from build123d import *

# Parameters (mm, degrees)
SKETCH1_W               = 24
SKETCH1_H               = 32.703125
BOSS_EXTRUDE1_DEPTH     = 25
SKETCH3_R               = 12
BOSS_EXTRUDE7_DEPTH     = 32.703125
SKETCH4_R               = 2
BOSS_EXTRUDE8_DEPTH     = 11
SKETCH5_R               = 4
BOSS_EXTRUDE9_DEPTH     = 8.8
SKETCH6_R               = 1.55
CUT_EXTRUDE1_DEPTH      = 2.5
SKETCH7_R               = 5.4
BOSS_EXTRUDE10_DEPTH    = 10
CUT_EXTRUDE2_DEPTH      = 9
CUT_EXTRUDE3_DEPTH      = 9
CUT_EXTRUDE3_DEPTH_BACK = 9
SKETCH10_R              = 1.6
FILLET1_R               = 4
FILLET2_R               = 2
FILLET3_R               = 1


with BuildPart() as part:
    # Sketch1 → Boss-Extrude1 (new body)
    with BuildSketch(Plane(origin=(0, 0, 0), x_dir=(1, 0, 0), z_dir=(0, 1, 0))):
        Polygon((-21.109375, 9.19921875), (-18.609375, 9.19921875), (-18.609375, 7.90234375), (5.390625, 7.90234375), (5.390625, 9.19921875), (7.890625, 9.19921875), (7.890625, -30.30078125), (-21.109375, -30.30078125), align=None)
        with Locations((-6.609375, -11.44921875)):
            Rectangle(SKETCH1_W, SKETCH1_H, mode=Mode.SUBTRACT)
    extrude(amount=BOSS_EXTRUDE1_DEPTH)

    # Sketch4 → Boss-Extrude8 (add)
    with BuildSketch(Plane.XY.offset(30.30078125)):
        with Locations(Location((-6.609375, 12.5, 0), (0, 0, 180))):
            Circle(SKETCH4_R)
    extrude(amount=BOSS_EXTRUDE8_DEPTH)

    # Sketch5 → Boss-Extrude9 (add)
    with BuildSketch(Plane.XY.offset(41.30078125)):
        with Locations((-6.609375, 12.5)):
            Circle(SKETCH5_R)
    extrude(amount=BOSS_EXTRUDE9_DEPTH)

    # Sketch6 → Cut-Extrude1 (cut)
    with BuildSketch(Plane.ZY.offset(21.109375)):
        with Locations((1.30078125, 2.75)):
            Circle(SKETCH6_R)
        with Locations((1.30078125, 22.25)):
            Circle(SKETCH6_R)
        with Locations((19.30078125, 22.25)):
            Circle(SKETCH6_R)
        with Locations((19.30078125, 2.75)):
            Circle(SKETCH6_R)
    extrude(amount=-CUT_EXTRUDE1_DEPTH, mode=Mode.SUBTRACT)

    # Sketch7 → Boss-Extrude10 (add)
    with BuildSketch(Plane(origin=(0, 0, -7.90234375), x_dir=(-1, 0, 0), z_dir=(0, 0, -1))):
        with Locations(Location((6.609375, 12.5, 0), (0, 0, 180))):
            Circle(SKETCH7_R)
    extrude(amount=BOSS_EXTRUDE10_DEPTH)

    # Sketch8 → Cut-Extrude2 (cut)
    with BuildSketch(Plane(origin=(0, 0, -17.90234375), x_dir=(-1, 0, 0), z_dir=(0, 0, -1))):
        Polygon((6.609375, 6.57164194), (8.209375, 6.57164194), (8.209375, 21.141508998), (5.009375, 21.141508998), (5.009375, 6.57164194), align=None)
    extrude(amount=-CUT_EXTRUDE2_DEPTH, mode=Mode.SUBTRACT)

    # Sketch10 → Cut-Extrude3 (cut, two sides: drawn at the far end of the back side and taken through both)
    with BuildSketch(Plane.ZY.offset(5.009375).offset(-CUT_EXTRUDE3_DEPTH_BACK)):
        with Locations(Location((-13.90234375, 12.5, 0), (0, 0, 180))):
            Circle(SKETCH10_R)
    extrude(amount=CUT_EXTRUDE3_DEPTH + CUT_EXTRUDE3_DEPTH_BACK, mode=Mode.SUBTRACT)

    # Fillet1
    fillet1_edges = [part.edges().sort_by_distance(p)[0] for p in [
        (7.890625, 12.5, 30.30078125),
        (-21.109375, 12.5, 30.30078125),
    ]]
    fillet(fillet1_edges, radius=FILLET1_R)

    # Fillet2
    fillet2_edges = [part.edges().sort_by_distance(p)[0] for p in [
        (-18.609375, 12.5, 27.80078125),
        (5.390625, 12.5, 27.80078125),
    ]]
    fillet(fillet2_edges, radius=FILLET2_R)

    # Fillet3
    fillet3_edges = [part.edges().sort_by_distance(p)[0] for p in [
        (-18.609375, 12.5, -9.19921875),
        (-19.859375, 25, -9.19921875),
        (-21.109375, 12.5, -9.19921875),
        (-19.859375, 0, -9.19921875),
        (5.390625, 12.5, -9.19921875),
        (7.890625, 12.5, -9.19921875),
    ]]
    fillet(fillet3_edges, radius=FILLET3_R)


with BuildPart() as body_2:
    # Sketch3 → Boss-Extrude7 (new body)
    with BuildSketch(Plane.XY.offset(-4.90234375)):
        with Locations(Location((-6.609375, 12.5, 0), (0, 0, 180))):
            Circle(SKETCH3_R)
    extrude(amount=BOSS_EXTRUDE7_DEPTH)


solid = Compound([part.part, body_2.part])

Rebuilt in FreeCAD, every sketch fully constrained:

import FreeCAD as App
import Part
import Sketcher
from FreeCAD import Vector
Q = App.Units.Quantity


def edges_at(feature, points):
    """Names of the edges that pass closest to the given points."""
    edges = feature.Shape.Edges
    near = lambda p: min(range(len(edges)), key=lambda i: edges[i].distToShape(Part.Vertex(*p))[0])
    return sorted({f"Edge{near(p) + 1}" for p in points})

doc = App.newDocument("Part")
params = doc.addObject("Spreadsheet::Sheet", "Params")
for row, (alias, value) in enumerate([
    ("sketch1_width", "29 mm"),
    ("sketch1_width2", "24 mm"),
    ("sketch1_height", "39.5 mm"),
    ("pad1_length", "25 mm"),
    ("sketch2_diameter", "4 mm"),
    ("pad2_length", "11 mm"),
    ("sketch3_diameter", "8 mm"),
    ("pad3_length", "8.8 mm"),
    ("sketch4_diameter", "3.1 mm"),
    ("pocket1_length", "2.5 mm"),
    ("sketch5_diameter", "10.8 mm"),
    ("pad4_length", "10 mm"),
    ("sketch6_width", "3.2 mm"),
    ("pocket2_length", "9 mm"),
    ("sketch7_diameter", "3.2 mm"),
    ("fillet_radius", "4 mm"),
    ("fillet2_radius", "2 mm"),
    ("fillet3_radius", "1 mm"),
    ("sketch8_diameter", "24 mm"),
    ("pad5_length", "32.703125 mm"),
], start=1):
    params.set(f"A{row}", alias)
    params.set(f"B{row}", "=" + value)
    params.setAlias(f"B{row}", alias)

body = doc.addObject("PartDesign::Body", "Body")

# Sketch on XZ plane
sketch1 = doc.addObject("Sketcher::SketchObject", "Sketch")
body.addObject(sketch1)
sketch1.AttachmentSupport = (doc.XZ_Plane, [""])
sketch1.MapMode = "FlatFace"
sketch1.addGeometry(Part.LineSegment(Vector(-18.6, -9.2, 0), Vector(-21.1, -9.2, 0)), False)
sketch1.addGeometry(Part.LineSegment(Vector(-21.1, -9.2, 0), Vector(-21.1, 30.3, 0)), False)
sketch1.addGeometry(Part.LineSegment(Vector(-21.1, 30.3, 0), Vector(7.9, 30.3, 0)), False)
sketch1.addGeometry(Part.LineSegment(Vector(7.9, 30.3, 0), Vector(7.9, -9.2, 0)), False)
sketch1.addGeometry(Part.LineSegment(Vector(7.9, -9.2, 0), Vector(5.4, -9.2, 0)), False)
sketch1.addGeometry(Part.LineSegment(Vector(5.4, -9.2, 0), Vector(5.4, -7.9, 0)), False)
sketch1.addGeometry(Part.LineSegment(Vector(5.4, -7.9, 0), Vector(-18.6, -7.9, 0)), False)
sketch1.addGeometry(Part.LineSegment(Vector(-18.6, -7.9, 0), Vector(-18.6, -9.2, 0)), False)
sketch1.addGeometry(Part.LineSegment(Vector(-18.6, 27.8, 0), Vector(-18.6, -4.9, 0)), False)
sketch1.addGeometry(Part.LineSegment(Vector(-18.6, -4.9, 0), Vector(5.4, -4.9, 0)), False)
sketch1.addGeometry(Part.LineSegment(Vector(5.4, -4.9, 0), Vector(5.4, 27.8, 0)), False)
sketch1.addGeometry(Part.LineSegment(Vector(5.4, 27.8, 0), Vector(-18.6, 27.8, 0)), False)
sketch1.addConstraint(Sketcher.Constraint("Coincident", 0, 2, 1, 1))
sketch1.addConstraint(Sketcher.Constraint("Coincident", 1, 2, 2, 1))
sketch1.addConstraint(Sketcher.Constraint("Coincident", 2, 2, 3, 1))
sketch1.addConstraint(Sketcher.Constraint("Coincident", 3, 2, 4, 1))
sketch1.addConstraint(Sketcher.Constraint("Coincident", 4, 2, 5, 1))
sketch1.addConstraint(Sketcher.Constraint("Coincident", 5, 2, 6, 1))
sketch1.addConstraint(Sketcher.Constraint("Coincident", 6, 2, 7, 1))
sketch1.addConstraint(Sketcher.Constraint("Coincident", 7, 2, 0, 1))
sketch1.addConstraint(Sketcher.Constraint("Coincident", 8, 2, 9, 1))
sketch1.addConstraint(Sketcher.Constraint("Coincident", 9, 2, 10, 1))
sketch1.addConstraint(Sketcher.Constraint("Coincident", 10, 2, 11, 1))
sketch1.addConstraint(Sketcher.Constraint("Coincident", 11, 2, 8, 1))
sketch1.addConstraint(Sketcher.Constraint("Horizontal", 0))
sketch1.addConstraint(Sketcher.Constraint("Vertical", 1))
sketch1.addConstraint(Sketcher.Constraint("Horizontal", 2))
sketch1.addConstraint(Sketcher.Constraint("Vertical", 3))
sketch1.addConstraint(Sketcher.Constraint("Horizontal", 4))
sketch1.addConstraint(Sketcher.Constraint("Vertical", 5))
sketch1.addConstraint(Sketcher.Constraint("Horizontal", 6))
sketch1.addConstraint(Sketcher.Constraint("Vertical", 7))
sketch1.addConstraint(Sketcher.Constraint("Vertical", 8))
sketch1.addConstraint(Sketcher.Constraint("Horizontal", 9))
sketch1.addConstraint(Sketcher.Constraint("Vertical", 10))
sketch1.addConstraint(Sketcher.Constraint("Horizontal", 11))
sketch1.addConstraint(Sketcher.Constraint("Horizontal", 0, 2, 3, 2))
sketch1.addConstraint(Sketcher.Constraint("Vertical", 7, 2, 8, 2))
sketch1.addConstraint(Sketcher.Constraint("Vertical", 5, 2, 9, 2))
sketch1.addConstraint(Sketcher.Constraint("Equal", 0, 4))
sketch1.addConstraint(Sketcher.Constraint("DistanceX", 2, 1, 2, 2, Q("29 mm")))
sketch1.addConstraint(Sketcher.Constraint("DistanceX", 6, 2, 6, 1, Q("24 mm")))
sketch1.addConstraint(Sketcher.Constraint("DistanceY", 1, 1, 1, 2, Q("39.5 mm")))
sketch1.addConstraint(Sketcher.Constraint("DistanceY", 6, 2, 8, 2, Q("3 mm")))
sketch1.addConstraint(Sketcher.Constraint("DistanceY", 4, 2, 10, 2, Q("37 mm")))
sketch1.addConstraint(Sketcher.Constraint("DistanceY", 5, 1, 5, 2, Q("1.296875 mm")))
sketch1.addConstraint(Sketcher.Constraint("DistanceY", 0, 2, -1, 1, Q("9.199219 mm")))
sketch1.addConstraint(Sketcher.Constraint("DistanceX", 0, 2, -1, 1, Q("21.109375 mm")))
sketch1.setExpression("Constraints[28]", "Params.sketch1_width")
sketch1.setExpression("Constraints[29]", "Params.sketch1_width2")
sketch1.setExpression("Constraints[30]", "Params.sketch1_height")
pad1 = doc.addObject("PartDesign::Pad", "Pad")
body.addObject(pad1)
pad1.Profile = sketch1
pad1.setExpression("Length", "Params.pad1_length")
pad1.Reversed = True

# Sketch on XY plane
sketch2 = doc.addObject("Sketcher::SketchObject", "Sketch001")
body.addObject(sketch2)
sketch2.AttachmentSupport = (doc.XY_Plane, [""])
sketch2.MapMode = "FlatFace"
sketch2.AttachmentOffset = App.Placement(Vector(0, 0, 30.300781), App.Rotation())
sketch2.addGeometry(Part.Circle(Vector(-6.6, 12.5, 0), Vector(0, 0, 1), 2), False)
sketch2.addConstraint(Sketcher.Constraint("Diameter", 0, Q("4 mm")))
sketch2.addConstraint(Sketcher.Constraint("DistanceY", -1, 1, 0, 3, Q("12.5 mm")))
sketch2.addConstraint(Sketcher.Constraint("DistanceX", 0, 3, -1, 1, Q("6.609375 mm")))
sketch2.setExpression("Constraints[0]", "Params.sketch2_diameter")
pad2 = doc.addObject("PartDesign::Pad", "Pad001")
body.addObject(pad2)
pad2.Profile = sketch2
pad2.setExpression("Length", "Params.pad2_length")

# Sketch on XY plane
sketch3 = doc.addObject("Sketcher::SketchObject", "Sketch002")
body.addObject(sketch3)
sketch3.AttachmentSupport = (doc.XY_Plane, [""])
sketch3.MapMode = "FlatFace"
sketch3.AttachmentOffset = App.Placement(Vector(0, 0, 41.300781), App.Rotation())
sketch3.addGeometry(Part.Circle(Vector(-6.6, 12.5, 0), Vector(0, 0, 1), 4), False)
sketch3.addConstraint(Sketcher.Constraint("Diameter", 0, Q("8 mm")))
sketch3.addConstraint(Sketcher.Constraint("DistanceY", -1, 1, 0, 3, Q("12.5 mm")))
sketch3.addConstraint(Sketcher.Constraint("DistanceX", 0, 3, -1, 1, Q("6.609375 mm")))
sketch3.setExpression("Constraints[0]", "Params.sketch3_diameter")
pad3 = doc.addObject("PartDesign::Pad", "Pad002")
body.addObject(pad3)
pad3.Profile = sketch3
pad3.setExpression("Length", "Params.pad3_length")

# Sketch on YZ plane
sketch4 = doc.addObject("Sketcher::SketchObject", "Sketch003")
body.addObject(sketch4)
sketch4.AttachmentSupport = (doc.YZ_Plane, [""])
sketch4.MapMode = "FlatFace"
sketch4.AttachmentOffset = App.Placement(Vector(0, 0, -21.109375), App.Rotation())
sketch4.addGeometry(Part.Circle(Vector(2.8, 1.3, 0), Vector(0, 0, 1), 1.6), False)
sketch4.addGeometry(Part.Circle(Vector(22.2, 1.3, 0), Vector(0, 0, 1), 1.6), False)
sketch4.addGeometry(Part.Circle(Vector(22.2, 19.3, 0), Vector(0, 0, 1), 1.6), False)
sketch4.addGeometry(Part.Circle(Vector(2.8, 19.3, 0), Vector(0, 0, 1), 1.6), False)
sketch4.addConstraint(Sketcher.Constraint("Equal", 0, 1))
sketch4.addConstraint(Sketcher.Constraint("Equal", 1, 2))
sketch4.addConstraint(Sketcher.Constraint("Equal", 2, 3))
sketch4.addConstraint(Sketcher.Constraint("Horizontal", 0, 3, 1, 3))
sketch4.addConstraint(Sketcher.Constraint("Horizontal", 2, 3, 3, 3))
sketch4.addConstraint(Sketcher.Constraint("Vertical", 1, 3, 2, 3))
sketch4.addConstraint(Sketcher.Constraint("Vertical", 0, 3, 3, 3))
sketch4.addConstraint(Sketcher.Constraint("Diameter", 0, Q("3.1 mm")))
sketch4.addConstraint(Sketcher.Constraint("DistanceY", 1, 3, 2, 3, Q("18 mm")))
sketch4.addConstraint(Sketcher.Constraint("DistanceX", 0, 3, 1, 3, Q("19.5 mm")))
sketch4.addConstraint(Sketcher.Constraint("DistanceX", -1, 1, 0, 3, Q("2.75 mm")))
sketch4.addConstraint(Sketcher.Constraint("DistanceY", -1, 1, 0, 3, Q("1.300781 mm")))
sketch4.setExpression("Constraints[7]", "Params.sketch4_diameter")
pocket1 = doc.addObject("PartDesign::Pocket", "Pocket")
body.addObject(pocket1)
pocket1.Profile = sketch4
pocket1.setExpression("Length", "Params.pocket1_length")
pocket1.Reversed = True

# Sketch on XY plane
sketch5 = doc.addObject("Sketcher::SketchObject", "Sketch004")
body.addObject(sketch5)
sketch5.AttachmentSupport = (doc.XY_Plane, [""])
sketch5.MapMode = "FlatFace"
sketch5.AttachmentOffset = App.Placement(Vector(0, 0, -7.902344), App.Rotation())
sketch5.addGeometry(Part.Circle(Vector(-7, 12, 0), Vector(0, 0, 1), 5), False)
sketch5.addConstraint(Sketcher.Constraint("Diameter", 0, Q("10.8 mm")))
sketch5.addConstraint(Sketcher.Constraint("DistanceY", -1, 1, 0, 3, Q("12.5 mm")))
sketch5.addConstraint(Sketcher.Constraint("DistanceX", 0, 3, -1, 1, Q("6.609375 mm")))
sketch5.setExpression("Constraints[0]", "Params.sketch5_diameter")
pad4 = doc.addObject("PartDesign::Pad", "Pad003")
body.addObject(pad4)
pad4.Profile = sketch5
pad4.setExpression("Length", "Params.pad4_length")
pad4.Reversed = True

# Sketch on XY plane
sketch6 = doc.addObject("Sketcher::SketchObject", "Sketch005")
body.addObject(sketch6)
sketch6.AttachmentSupport = (doc.XY_Plane, [""])
sketch6.MapMode = "FlatFace"
sketch6.AttachmentOffset = App.Placement(Vector(0, 0, -17.902344), App.Rotation())
sketch6.addGeometry(Part.LineSegment(Vector(-8.2, 6.6, 0), Vector(-8.2, 21.1, 0)), False)
sketch6.addGeometry(Part.LineSegment(Vector(-8.2, 21.1, 0), Vector(-5, 21.1, 0)), False)
sketch6.addGeometry(Part.LineSegment(Vector(-5, 21.1, 0), Vector(-5, 6.6, 0)), False)
sketch6.addGeometry(Part.LineSegment(Vector(-5, 6.6, 0), Vector(-8.2, 6.6, 0)), False)
sketch6.addConstraint(Sketcher.Constraint("Coincident", 0, 2, 1, 1))
sketch6.addConstraint(Sketcher.Constraint("Coincident", 1, 2, 2, 1))
sketch6.addConstraint(Sketcher.Constraint("Coincident", 2, 2, 3, 1))
sketch6.addConstraint(Sketcher.Constraint("Coincident", 3, 2, 0, 1))
sketch6.addConstraint(Sketcher.Constraint("Vertical", 0))
sketch6.addConstraint(Sketcher.Constraint("Horizontal", 1))
sketch6.addConstraint(Sketcher.Constraint("Vertical", 2))
sketch6.addConstraint(Sketcher.Constraint("Horizontal", 3))
sketch6.addConstraint(Sketcher.Constraint("DistanceX", 1, 1, 1, 2, Q("3.2 mm")))
sketch6.addConstraint(Sketcher.Constraint("DistanceY", 0, 1, 0, 2, Q("14.569867 mm")))
sketch6.addConstraint(Sketcher.Constraint("DistanceY", -1, 1, 0, 2, Q("21.141509 mm")))
sketch6.addConstraint(Sketcher.Constraint("DistanceX", 0, 2, -1, 1, Q("8.209375 mm")))
sketch6.setExpression("Constraints[8]", "Params.sketch6_width")
pocket2 = doc.addObject("PartDesign::Pocket", "Pocket001")
body.addObject(pocket2)
pocket2.Profile = sketch6
pocket2.setExpression("Length", "Params.pocket2_length")
pocket2.Reversed = True

# Sketch on YZ plane
sketch7 = doc.addObject("Sketcher::SketchObject", "Sketch006")
body.addObject(sketch7)
sketch7.AttachmentSupport = (doc.YZ_Plane, [""])
sketch7.MapMode = "FlatFace"
sketch7.AttachmentOffset = App.Placement(Vector(0, 0, -5.009375), App.Rotation())
sketch7.addGeometry(Part.Circle(Vector(12.5, -13.9, 0), Vector(0, 0, 1), 1.6), False)
sketch7.addConstraint(Sketcher.Constraint("Diameter", 0, Q("3.2 mm")))
sketch7.addConstraint(Sketcher.Constraint("DistanceX", -1, 1, 0, 3, Q("12.5 mm")))
sketch7.addConstraint(Sketcher.Constraint("DistanceY", 0, 3, -1, 1, Q("13.902344 mm")))
sketch7.setExpression("Constraints[0]", "Params.sketch7_diameter")
pocket3 = doc.addObject("PartDesign::Pocket", "Pocket002")
body.addObject(pocket3)
pocket3.Profile = sketch7
pocket3.Type = "ThroughAll"
pocket3.Midplane = True
doc.recompute()

fillet = doc.addObject("PartDesign::Fillet", "Fillet")
body.addObject(fillet)
fillet.Base = (pocket3, edges_at(pocket3, [(7.891, 12.5, 30.301), (-21.109, 12.5, 30.301)]))
fillet.setExpression("Radius", "Params.fillet_radius")
doc.recompute()

fillet2 = doc.addObject("PartDesign::Fillet", "Fillet001")
body.addObject(fillet2)
fillet2.Base = (fillet, edges_at(fillet, [(-18.609, 12.5, 27.801), (5.391, 12.5, 27.801)]))
fillet2.setExpression("Radius", "Params.fillet2_radius")
doc.recompute()

fillet3 = doc.addObject("PartDesign::Fillet", "Fillet002")
body.addObject(fillet3)
fillet3.Base = (fillet2, edges_at(fillet2, [
    (-18.609, 12.5, -9.199),
    (-19.859, 25, -9.199),
    (-21.109, 12.5, -9.199),
    (-19.859, 0, -9.199),
    (5.391, 12.5, -9.199),
    (7.891, 12.5, -9.199),
]))
fillet3.setExpression("Radius", "Params.fillet3_radius")
body2 = doc.addObject("PartDesign::Body", "Body001")

# Sketch on XY plane
sketch8 = doc.addObject("Sketcher::SketchObject", "Sketch007")
body2.addObject(sketch8)
sketch8.AttachmentSupport = (doc.getObject("XY_Plane001"), [""])
sketch8.MapMode = "FlatFace"
sketch8.AttachmentOffset = App.Placement(Vector(0, 0, -4.902344), App.Rotation())
sketch8.addGeometry(Part.Circle(Vector(-7, 12, 0), Vector(0, 0, 1), 12), False)
sketch8.addConstraint(Sketcher.Constraint("Diameter", 0, Q("24 mm")))
sketch8.addConstraint(Sketcher.Constraint("DistanceY", -1, 1, 0, 3, Q("12.5 mm")))
sketch8.addConstraint(Sketcher.Constraint("DistanceX", 0, 3, -1, 1, Q("6.609375 mm")))
sketch8.setExpression("Constraints[0]", "Params.sketch8_diameter")
pad5 = doc.addObject("PartDesign::Pad", "Pad004")
body2.addObject(pad5)
pad5.Profile = sketch8
pad5.setExpression("Length", "Params.pad5_length")

doc.recompute()
